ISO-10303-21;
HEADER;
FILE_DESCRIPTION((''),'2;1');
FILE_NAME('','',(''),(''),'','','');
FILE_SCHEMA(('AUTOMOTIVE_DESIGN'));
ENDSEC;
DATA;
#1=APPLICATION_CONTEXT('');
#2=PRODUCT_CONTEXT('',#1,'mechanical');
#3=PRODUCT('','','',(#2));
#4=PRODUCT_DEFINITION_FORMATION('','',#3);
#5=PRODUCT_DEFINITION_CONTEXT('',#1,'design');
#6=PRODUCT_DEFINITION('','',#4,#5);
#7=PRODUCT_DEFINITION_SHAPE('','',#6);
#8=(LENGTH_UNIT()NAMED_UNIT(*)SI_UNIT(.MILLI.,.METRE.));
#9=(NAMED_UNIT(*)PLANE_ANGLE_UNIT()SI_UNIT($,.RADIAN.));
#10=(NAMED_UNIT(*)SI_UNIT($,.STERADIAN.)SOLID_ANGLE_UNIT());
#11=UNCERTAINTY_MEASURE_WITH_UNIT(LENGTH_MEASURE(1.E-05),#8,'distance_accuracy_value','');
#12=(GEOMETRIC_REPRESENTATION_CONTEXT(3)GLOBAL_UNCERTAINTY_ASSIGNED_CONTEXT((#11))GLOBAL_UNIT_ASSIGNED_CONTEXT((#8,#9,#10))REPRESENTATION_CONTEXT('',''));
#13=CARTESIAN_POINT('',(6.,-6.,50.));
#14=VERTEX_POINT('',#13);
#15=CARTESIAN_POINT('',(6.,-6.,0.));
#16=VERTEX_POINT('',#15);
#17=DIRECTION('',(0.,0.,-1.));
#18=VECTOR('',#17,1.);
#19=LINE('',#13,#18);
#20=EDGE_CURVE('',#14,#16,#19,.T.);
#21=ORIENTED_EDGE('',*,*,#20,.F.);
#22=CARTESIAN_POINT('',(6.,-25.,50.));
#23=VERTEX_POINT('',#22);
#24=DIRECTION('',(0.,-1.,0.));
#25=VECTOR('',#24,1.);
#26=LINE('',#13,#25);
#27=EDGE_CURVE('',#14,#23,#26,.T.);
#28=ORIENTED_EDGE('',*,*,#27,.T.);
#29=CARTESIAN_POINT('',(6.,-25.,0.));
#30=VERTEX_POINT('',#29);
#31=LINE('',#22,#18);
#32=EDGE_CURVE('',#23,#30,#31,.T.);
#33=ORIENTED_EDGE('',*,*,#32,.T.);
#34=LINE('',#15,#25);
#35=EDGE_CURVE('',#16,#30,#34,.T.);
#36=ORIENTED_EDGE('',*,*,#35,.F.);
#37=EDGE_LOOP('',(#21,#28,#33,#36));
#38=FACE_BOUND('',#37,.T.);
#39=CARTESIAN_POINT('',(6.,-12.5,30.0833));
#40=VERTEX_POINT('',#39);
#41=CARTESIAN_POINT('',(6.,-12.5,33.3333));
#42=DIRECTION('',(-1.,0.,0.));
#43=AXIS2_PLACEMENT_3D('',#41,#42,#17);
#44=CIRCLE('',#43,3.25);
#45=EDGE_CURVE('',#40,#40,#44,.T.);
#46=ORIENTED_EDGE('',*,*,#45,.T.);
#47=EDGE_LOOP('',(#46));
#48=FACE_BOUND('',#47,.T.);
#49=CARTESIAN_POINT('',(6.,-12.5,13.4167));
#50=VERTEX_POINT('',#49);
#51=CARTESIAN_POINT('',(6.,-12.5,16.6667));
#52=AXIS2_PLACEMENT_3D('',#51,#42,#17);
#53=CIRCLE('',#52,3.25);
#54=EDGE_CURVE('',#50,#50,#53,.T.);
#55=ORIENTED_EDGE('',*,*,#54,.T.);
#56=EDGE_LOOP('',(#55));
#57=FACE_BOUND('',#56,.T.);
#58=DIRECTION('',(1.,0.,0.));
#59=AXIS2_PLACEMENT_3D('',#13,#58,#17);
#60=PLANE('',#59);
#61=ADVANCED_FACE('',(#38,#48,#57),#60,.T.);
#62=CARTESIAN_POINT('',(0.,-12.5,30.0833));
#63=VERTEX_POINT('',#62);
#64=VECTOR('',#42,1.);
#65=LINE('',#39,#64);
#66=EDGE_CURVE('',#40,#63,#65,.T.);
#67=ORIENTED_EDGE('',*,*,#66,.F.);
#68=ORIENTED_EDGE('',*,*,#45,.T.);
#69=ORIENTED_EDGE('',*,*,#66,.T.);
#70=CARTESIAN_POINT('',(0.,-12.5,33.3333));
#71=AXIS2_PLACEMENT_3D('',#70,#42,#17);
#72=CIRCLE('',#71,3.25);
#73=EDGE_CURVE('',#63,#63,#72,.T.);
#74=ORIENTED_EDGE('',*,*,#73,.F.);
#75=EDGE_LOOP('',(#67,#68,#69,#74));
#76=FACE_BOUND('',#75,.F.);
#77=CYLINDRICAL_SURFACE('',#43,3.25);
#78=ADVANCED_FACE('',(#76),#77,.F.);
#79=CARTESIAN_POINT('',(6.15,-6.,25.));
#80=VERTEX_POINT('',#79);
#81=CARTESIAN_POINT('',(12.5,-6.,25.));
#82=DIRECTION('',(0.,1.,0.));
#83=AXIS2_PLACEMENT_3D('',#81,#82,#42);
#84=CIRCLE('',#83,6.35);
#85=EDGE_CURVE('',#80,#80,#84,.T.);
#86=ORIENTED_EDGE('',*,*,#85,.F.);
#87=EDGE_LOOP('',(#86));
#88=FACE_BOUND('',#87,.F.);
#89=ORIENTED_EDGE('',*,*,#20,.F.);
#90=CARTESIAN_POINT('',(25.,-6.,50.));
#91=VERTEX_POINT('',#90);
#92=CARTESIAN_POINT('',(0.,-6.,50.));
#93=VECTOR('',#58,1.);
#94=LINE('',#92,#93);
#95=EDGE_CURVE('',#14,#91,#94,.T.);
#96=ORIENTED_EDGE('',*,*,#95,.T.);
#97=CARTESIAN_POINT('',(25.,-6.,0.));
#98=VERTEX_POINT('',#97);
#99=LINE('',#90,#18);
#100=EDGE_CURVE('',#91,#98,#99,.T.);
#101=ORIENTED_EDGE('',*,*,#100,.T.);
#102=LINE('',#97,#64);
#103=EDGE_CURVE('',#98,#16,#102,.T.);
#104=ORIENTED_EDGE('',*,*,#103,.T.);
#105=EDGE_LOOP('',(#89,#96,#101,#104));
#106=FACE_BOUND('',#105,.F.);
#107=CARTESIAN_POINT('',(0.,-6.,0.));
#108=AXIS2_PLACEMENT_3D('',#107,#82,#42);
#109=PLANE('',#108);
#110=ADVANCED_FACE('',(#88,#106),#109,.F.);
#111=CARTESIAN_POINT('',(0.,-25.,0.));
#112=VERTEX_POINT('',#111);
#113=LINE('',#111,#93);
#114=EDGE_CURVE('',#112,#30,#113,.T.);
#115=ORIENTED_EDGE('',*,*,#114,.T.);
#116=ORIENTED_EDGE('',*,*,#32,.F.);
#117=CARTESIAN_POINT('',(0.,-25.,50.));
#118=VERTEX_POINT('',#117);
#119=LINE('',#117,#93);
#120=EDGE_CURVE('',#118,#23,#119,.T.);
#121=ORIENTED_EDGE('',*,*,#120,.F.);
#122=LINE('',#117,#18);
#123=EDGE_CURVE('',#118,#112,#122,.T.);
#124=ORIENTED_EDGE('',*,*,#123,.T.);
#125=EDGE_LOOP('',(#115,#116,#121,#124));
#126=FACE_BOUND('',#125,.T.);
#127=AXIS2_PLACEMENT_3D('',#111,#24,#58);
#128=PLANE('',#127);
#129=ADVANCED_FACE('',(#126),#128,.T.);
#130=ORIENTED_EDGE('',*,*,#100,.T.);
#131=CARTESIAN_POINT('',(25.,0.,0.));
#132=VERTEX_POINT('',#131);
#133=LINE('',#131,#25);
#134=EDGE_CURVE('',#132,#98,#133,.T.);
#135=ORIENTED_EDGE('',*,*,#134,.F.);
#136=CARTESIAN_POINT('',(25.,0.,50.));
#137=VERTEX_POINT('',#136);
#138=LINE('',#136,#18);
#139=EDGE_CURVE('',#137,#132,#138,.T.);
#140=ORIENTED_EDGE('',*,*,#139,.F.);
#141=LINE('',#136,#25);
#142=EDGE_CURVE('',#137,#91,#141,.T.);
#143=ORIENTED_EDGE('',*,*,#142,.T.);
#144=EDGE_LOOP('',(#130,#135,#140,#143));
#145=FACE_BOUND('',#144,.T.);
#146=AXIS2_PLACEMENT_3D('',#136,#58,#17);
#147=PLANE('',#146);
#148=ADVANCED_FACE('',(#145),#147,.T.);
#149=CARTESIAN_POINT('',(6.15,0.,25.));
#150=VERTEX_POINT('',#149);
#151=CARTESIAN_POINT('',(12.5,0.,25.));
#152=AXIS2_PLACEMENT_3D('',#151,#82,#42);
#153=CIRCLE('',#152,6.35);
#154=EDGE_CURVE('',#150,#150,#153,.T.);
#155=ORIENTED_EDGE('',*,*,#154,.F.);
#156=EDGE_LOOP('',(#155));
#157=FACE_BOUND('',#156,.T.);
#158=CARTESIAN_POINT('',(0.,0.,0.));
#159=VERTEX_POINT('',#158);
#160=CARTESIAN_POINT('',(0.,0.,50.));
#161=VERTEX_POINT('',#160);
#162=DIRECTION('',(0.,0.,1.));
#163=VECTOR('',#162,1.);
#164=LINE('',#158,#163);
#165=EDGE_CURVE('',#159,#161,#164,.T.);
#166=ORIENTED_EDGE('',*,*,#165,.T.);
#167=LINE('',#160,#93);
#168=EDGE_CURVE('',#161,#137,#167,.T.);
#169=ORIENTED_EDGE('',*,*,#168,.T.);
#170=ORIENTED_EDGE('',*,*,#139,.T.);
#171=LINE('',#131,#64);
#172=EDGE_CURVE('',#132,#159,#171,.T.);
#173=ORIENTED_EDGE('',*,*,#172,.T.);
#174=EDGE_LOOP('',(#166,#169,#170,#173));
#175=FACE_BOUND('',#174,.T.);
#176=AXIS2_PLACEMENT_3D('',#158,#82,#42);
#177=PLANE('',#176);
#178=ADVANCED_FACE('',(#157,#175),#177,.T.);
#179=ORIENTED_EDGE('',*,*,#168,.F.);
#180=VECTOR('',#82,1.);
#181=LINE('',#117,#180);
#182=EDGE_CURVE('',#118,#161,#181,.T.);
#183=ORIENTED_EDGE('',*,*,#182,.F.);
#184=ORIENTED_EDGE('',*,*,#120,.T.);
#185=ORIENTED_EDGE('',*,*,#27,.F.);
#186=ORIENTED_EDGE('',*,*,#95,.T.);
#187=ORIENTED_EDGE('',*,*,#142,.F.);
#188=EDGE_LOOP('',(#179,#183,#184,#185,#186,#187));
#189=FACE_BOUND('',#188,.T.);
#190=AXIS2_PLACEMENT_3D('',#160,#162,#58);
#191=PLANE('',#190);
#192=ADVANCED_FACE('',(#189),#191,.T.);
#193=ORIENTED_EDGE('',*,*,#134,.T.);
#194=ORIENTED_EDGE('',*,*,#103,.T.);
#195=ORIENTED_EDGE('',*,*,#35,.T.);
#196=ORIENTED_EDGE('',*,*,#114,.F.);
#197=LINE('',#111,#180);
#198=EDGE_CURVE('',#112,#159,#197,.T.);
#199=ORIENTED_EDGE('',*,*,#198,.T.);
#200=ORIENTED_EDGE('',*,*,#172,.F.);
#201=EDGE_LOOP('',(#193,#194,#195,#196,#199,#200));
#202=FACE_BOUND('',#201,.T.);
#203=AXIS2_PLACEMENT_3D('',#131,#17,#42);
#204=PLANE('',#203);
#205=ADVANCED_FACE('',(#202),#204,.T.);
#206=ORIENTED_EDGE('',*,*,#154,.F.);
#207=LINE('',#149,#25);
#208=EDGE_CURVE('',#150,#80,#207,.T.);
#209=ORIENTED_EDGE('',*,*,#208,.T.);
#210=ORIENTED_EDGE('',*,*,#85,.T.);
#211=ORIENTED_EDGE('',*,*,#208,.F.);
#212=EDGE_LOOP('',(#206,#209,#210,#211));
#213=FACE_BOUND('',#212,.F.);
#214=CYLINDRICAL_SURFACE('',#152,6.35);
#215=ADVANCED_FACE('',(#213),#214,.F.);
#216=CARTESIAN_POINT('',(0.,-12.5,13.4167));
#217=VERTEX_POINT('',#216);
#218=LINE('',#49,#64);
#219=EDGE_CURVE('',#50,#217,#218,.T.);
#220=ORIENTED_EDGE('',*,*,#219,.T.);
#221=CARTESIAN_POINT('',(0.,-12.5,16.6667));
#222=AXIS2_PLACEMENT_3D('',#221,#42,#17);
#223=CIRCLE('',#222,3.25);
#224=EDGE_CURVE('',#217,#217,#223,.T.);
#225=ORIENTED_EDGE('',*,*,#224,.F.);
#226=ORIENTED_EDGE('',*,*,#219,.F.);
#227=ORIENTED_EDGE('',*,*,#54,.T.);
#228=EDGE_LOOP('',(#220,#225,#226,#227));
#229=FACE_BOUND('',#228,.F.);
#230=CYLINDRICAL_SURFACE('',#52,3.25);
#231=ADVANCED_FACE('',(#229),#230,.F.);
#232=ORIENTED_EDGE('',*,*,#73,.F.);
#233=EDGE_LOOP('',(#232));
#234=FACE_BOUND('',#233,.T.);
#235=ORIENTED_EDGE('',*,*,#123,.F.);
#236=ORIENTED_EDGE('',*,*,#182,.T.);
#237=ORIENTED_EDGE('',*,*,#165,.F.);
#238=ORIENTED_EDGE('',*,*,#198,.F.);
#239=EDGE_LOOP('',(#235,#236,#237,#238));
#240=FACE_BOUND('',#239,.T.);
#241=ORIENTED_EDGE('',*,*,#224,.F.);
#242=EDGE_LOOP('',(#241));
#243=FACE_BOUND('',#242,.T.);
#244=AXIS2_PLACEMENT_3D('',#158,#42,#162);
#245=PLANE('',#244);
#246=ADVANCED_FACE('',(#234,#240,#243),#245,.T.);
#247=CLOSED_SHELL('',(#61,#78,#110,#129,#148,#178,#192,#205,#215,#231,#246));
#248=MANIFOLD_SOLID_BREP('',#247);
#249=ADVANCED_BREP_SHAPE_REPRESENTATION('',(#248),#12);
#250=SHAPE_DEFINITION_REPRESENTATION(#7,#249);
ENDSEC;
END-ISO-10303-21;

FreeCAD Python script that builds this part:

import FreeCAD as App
import Part
import Sketcher
from FreeCAD import Vector
Q = App.Units.Quantity


def add_polygon(sketch, points):
    """Adds a closed chain of lines whose ends are joined by coincident constraints."""
    first, n = sketch.GeometryCount, len(points)
    for a, b in zip(points, points[1:] + points[:1]):
        sketch.addGeometry(Part.LineSegment(App.Vector(*a, 0), App.Vector(*b, 0)), False)
    for i in range(n):
        sketch.addConstraint(Sketcher.Constraint("Coincident", first + i, 2, first + (i + 1) % n, 1))

doc = App.newDocument("Part")
body = doc.addObject("PartDesign::Body", "Body")

sketch1 = doc.addObject("Sketcher::SketchObject", "Sketch")
body.addObject(sketch1)
sketch1.AttachmentSupport = (doc.XZ_Plane, [""])
sketch1.MapMode = "FlatFace"
add_polygon(sketch1, [(25, 0), (0, 0), (0, 50), (25, 50)])
sketch1.addGeometry(Part.Circle(Vector(12, 25, 0), Vector(0, 0, 1), 6), False)
sketch1.addConstraint(Sketcher.Constraint("Horizontal", 0))
sketch1.addConstraint(Sketcher.Constraint("Vertical", 1))
sketch1.addConstraint(Sketcher.Constraint("Horizontal", 2))
sketch1.addConstraint(Sketcher.Constraint("Vertical", 3))
sketch1.addConstraint(Sketcher.Constraint("Coincident", 0, 2, -1, 1))
sketch1.addConstraint(Sketcher.Constraint("Diameter", 4, Q("12.7 mm")))
sketch1.addConstraint(Sketcher.Constraint("DistanceX", 0, 2, 0, 1, Q("25 mm")))
sketch1.addConstraint(Sketcher.Constraint("DistanceY", 1, 1, 1, 2, Q("50 mm")))
sketch1.addConstraint(Sketcher.Constraint("DistanceY", -1, 1, 4, 3, Q("25 mm")))
sketch1.addConstraint(Sketcher.Constraint("DistanceX", -1, 1, 4, 3, Q("12.5 mm")))
pad1 = doc.addObject("PartDesign::Pad", "Pad")
body.addObject(pad1)
pad1.Profile = sketch1
pad1.Length = 6

sketch2 = doc.addObject("Sketcher::SketchObject", "Sketch001")
body.addObject(sketch2)
sketch2.AttachmentSupport = (doc.XZ_Plane, [""])
sketch2.MapMode = "FlatFace"
sketch2.AttachmentOffset = App.Placement(Vector(0, 0, 6), App.Rotation())
add_polygon(sketch2, [(6, 50), (0, 50), (0, 0), (6, 0)])
sketch2.addConstraint(Sketcher.Constraint("Horizontal", 0))
sketch2.addConstraint(Sketcher.Constraint("Vertical", 1))
sketch2.addConstraint(Sketcher.Constraint("Horizontal", 2))
sketch2.addConstraint(Sketcher.Constraint("Vertical", 3))
sketch2.addConstraint(Sketcher.Constraint("Coincident", 1, 2, -1, 1))
sketch2.addConstraint(Sketcher.Constraint("DistanceX", 0, 2, 0, 1, Q("6 mm")))
sketch2.addConstraint(Sketcher.Constraint("DistanceY", 1, 2, 1, 1, Q("50 mm")))
pad2 = doc.addObject("PartDesign::Pad", "Pad001")
body.addObject(pad2)
pad2.Profile = sketch2
pad2.Length = 19

sketch3 = doc.addObject("Sketcher::SketchObject", "Sketch002")
body.addObject(sketch3)
sketch3.AttachmentSupport = (doc.YZ_Plane, [""])
sketch3.MapMode = "FlatFace"
sketch3.AttachmentOffset = App.Placement(Vector(0, 0, 6), App.Rotation())
sketch3.addGeometry(Part.Circle(Vector(-12.5, 33.3, 0), Vector(0, 0, 1), 3.2), False)
sketch3.addGeometry(Part.Circle(Vector(-12.5, 16.7, 0), Vector(0, 0, 1), 3.2), False)
sketch3.addConstraint(Sketcher.Constraint("Equal", 0, 1))
sketch3.addConstraint(Sketcher.Constraint("Vertical", 0, 3, 1, 3))
sketch3.addConstraint(Sketcher.Constraint("Diameter", 0, Q("6.5 mm")))
sketch3.addConstraint(Sketcher.Constraint("DistanceX", 0, 3, -1, 1, Q("12.5 mm")))
sketch3.addConstraint(Sketcher.Constraint("DistanceY", -1, 1, 0, 3, Q("33.3333 mm")))
sketch3.addConstraint(Sketcher.Constraint("DistanceY", -1, 1, 1, 3, Q("16.6667 mm")))
doc.recompute()
hole = doc.addObject("PartDesign::Hole", "Hole")
body.addObject(hole)
hole.Profile = sketch3
hole.ThreadType = "None"
hole.Diameter = 6.5
hole.DepthType = "Dimension"
hole.Depth = 111
hole.DrillPoint = "Flat"

doc.recompute()
